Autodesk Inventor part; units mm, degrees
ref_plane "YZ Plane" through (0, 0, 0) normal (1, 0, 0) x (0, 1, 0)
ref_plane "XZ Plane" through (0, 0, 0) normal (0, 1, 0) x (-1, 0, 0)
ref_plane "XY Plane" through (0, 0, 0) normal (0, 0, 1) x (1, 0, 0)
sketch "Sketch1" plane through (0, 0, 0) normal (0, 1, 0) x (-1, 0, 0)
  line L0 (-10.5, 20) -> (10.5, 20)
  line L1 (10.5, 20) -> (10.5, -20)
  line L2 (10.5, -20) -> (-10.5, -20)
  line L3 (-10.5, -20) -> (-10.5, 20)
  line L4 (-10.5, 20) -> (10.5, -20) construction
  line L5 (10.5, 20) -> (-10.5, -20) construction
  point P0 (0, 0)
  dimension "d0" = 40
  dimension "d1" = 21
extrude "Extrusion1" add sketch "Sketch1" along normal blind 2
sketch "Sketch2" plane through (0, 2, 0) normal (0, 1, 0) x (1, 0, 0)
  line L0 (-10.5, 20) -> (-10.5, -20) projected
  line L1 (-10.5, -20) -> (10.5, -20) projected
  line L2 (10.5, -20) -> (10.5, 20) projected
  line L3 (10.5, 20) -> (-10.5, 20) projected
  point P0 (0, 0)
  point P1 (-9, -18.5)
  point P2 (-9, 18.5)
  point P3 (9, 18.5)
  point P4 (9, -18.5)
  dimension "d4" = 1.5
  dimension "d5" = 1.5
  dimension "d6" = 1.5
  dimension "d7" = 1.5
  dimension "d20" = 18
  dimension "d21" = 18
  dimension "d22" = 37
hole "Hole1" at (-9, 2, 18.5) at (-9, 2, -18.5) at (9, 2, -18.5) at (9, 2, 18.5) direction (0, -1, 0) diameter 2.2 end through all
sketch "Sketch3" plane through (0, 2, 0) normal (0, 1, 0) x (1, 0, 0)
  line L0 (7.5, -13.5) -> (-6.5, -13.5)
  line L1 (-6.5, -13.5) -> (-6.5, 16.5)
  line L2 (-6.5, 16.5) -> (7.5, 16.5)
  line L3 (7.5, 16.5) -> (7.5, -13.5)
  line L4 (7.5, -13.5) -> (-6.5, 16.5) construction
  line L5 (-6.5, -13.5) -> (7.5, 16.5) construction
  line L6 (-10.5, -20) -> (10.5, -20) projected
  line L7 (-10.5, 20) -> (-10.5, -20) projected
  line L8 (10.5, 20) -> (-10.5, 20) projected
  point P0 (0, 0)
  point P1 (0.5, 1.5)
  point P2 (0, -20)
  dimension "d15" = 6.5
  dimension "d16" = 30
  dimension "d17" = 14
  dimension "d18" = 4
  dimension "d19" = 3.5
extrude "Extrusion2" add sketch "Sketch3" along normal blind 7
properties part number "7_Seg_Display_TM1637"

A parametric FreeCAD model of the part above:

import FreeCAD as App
import Part
import Sketcher
from FreeCAD import Vector
Q = App.Units.Quantity


def add_polygon(sketch, points):
    """Adds a closed chain of lines whose ends are joined by coincident constraints."""
    first, n = sketch.GeometryCount, len(points)
    for a, b in zip(points, points[1:] + points[:1]):
        sketch.addGeometry(Part.LineSegment(App.Vector(*a, 0), App.Vector(*b, 0)), False)
    for i in range(n):
        sketch.addConstraint(Sketcher.Constraint("Coincident", first + i, 2, first + (i + 1) % n, 1))

doc = App.newDocument("Part")
params = doc.addObject("Spreadsheet::Sheet", "Params")
for row, (alias, value) in enumerate([
    ("sketch1_width", "21 mm"),
    ("sketch1_height", "40 mm"),
    ("pad1_length", "2 mm"),
    ("sketch2_diameter", "2.2 mm"),
    ("hole_diameter", "2.2 mm"),
    ("sketch3_width", "14 mm"),
    ("sketch3_height", "30 mm"),
    ("pad2_length", "7 mm"),
], start=1):
    params.set(f"A{row}", alias)
    params.set(f"B{row}", "=" + value)
    params.setAlias(f"B{row}", alias)

body = doc.addObject("PartDesign::Body", "Body")

# Sketch on XZ plane
sketch1 = doc.addObject("Sketcher::SketchObject", "Sketch")
body.addObject(sketch1)
sketch1.AttachmentSupport = (doc.XZ_Plane, [""])
sketch1.MapMode = "FlatFace"
add_polygon(sketch1, [(-10.5, 20), (10.5, 20), (10.5, -20), (-10.5, -20)])  # lines 0-3
sketch1.addConstraint(Sketcher.Constraint("Horizontal", 0))
sketch1.addConstraint(Sketcher.Constraint("Vertical", 1))
sketch1.addConstraint(Sketcher.Constraint("Horizontal", 2))
sketch1.addConstraint(Sketcher.Constraint("Vertical", 3))
sketch1.addConstraint(Sketcher.Constraint("Symmetric", 0, 2, 2, 2, -1, 1))
sketch1.addConstraint(Sketcher.Constraint("DistanceX", 0, 1, 0, 2, Q("21 mm")))
sketch1.addConstraint(Sketcher.Constraint("DistanceY", 1, 2, 1, 1, Q("40 mm")))
sketch1.setExpression("Constraints[9]", "Params.sketch1_width")
sketch1.setExpression("Constraints[10]", "Params.sketch1_height")
pad1 = doc.addObject("PartDesign::Pad", "Pad")
body.addObject(pad1)
pad1.Profile = sketch1
pad1.setExpression("Length", "Params.pad1_length")
pad1.Reversed = True

# Sketch on XZ plane
sketch2 = doc.addObject("Sketcher::SketchObject", "Sketch001")
body.addObject(sketch2)
sketch2.AttachmentSupport = (doc.XZ_Plane, [""])
sketch2.MapMode = "FlatFace"
sketch2.AttachmentOffset = App.Placement(Vector(0, 0, -2), App.Rotation())
sketch2.addGeometry(Part.Circle(Vector(-9, 18.5, 0), Vector(0, 0, 1), 1.1), False)
sketch2.addGeometry(Part.Circle(Vector(-9, -18.5, 0), Vector(0, 0, 1), 1.1), False)
sketch2.addGeometry(Part.Circle(Vector(9, -18.5, 0), Vector(0, 0, 1), 1.1), False)
sketch2.addGeometry(Part.Circle(Vector(9, 18.5, 0), Vector(0, 0, 1), 1.1), False)
sketch2.addConstraint(Sketcher.Constraint("Equal", 0, 1))
sketch2.addConstraint(Sketcher.Constraint("Equal", 1, 2))
sketch2.addConstraint(Sketcher.Constraint("Equal", 2, 3))
sketch2.addConstraint(Sketcher.Constraint("Symmetric", 0, 3, 2, 3, -1, 1))
sketch2.addConstraint(Sketcher.Constraint("Symmetric", 1, 3, 3, 3, -1, 1))
sketch2.addConstraint(Sketcher.Constraint("Symmetric", 1, 3, 2, 3, -2))
sketch2.addConstraint(Sketcher.Constraint("Diameter", 0, Q("2.2 mm")))
sketch2.addConstraint(Sketcher.Constraint("DistanceX", 0, 3, -1, 1, Q("9 mm")))
sketch2.addConstraint(Sketcher.Constraint("DistanceY", 1, 3, 0, 3, Q("37 mm")))
sketch2.setExpression("Constraints[6]", "Params.sketch2_diameter")
doc.recompute()
hole = doc.addObject("PartDesign::Hole", "Hole")
body.addObject(hole)
hole.Profile = sketch2
hole.ThreadType = "None"
hole.setExpression("Diameter", "Params.hole_diameter")
hole.DepthType = "ThroughAll"
hole.Reversed = True

# Sketch on XZ plane
sketch3 = doc.addObject("Sketcher::SketchObject", "Sketch002")
body.addObject(sketch3)
sketch3.AttachmentSupport = (doc.XZ_Plane, [""])
sketch3.MapMode = "FlatFace"
sketch3.AttachmentOffset = App.Placement(Vector(0, 0, -2), App.Rotation())
add_polygon(sketch3, [(-6.5, 13.5), (7.5, 13.5), (7.5, -16.5), (-6.5, -16.5)])  # lines 0-3
sketch3.addConstraint(Sketcher.Constraint("Horizontal", 0))
sketch3.addConstraint(Sketcher.Constraint("Vertical", 1))
sketch3.addConstraint(Sketcher.Constraint("Horizontal", 2))
sketch3.addConstraint(Sketcher.Constraint("Vertical", 3))
sketch3.addConstraint(Sketcher.Constraint("DistanceX", 0, 1, 0, 2, Q("14 mm")))
sketch3.addConstraint(Sketcher.Constraint("DistanceY", 1, 2, 1, 1, Q("30 mm")))
sketch3.addConstraint(Sketcher.Constraint("DistanceX", 2, 2, -1, 1, Q("6.5 mm")))
sketch3.addConstraint(Sketcher.Constraint("DistanceY", -1, 1, 0, 2, Q("13.5 mm")))
sketch3.setExpression("Constraints[8]", "Params.sketch3_width")
sketch3.setExpression("Constraints[9]", "Params.sketch3_height")
pad2 = doc.addObject("PartDesign::Pad", "Pad001")
body.addObject(pad2)
pad2.Profile = sketch3
pad2.setExpression("Length", "Params.pad2_length")
pad2.Reversed = True

doc.recompute()
